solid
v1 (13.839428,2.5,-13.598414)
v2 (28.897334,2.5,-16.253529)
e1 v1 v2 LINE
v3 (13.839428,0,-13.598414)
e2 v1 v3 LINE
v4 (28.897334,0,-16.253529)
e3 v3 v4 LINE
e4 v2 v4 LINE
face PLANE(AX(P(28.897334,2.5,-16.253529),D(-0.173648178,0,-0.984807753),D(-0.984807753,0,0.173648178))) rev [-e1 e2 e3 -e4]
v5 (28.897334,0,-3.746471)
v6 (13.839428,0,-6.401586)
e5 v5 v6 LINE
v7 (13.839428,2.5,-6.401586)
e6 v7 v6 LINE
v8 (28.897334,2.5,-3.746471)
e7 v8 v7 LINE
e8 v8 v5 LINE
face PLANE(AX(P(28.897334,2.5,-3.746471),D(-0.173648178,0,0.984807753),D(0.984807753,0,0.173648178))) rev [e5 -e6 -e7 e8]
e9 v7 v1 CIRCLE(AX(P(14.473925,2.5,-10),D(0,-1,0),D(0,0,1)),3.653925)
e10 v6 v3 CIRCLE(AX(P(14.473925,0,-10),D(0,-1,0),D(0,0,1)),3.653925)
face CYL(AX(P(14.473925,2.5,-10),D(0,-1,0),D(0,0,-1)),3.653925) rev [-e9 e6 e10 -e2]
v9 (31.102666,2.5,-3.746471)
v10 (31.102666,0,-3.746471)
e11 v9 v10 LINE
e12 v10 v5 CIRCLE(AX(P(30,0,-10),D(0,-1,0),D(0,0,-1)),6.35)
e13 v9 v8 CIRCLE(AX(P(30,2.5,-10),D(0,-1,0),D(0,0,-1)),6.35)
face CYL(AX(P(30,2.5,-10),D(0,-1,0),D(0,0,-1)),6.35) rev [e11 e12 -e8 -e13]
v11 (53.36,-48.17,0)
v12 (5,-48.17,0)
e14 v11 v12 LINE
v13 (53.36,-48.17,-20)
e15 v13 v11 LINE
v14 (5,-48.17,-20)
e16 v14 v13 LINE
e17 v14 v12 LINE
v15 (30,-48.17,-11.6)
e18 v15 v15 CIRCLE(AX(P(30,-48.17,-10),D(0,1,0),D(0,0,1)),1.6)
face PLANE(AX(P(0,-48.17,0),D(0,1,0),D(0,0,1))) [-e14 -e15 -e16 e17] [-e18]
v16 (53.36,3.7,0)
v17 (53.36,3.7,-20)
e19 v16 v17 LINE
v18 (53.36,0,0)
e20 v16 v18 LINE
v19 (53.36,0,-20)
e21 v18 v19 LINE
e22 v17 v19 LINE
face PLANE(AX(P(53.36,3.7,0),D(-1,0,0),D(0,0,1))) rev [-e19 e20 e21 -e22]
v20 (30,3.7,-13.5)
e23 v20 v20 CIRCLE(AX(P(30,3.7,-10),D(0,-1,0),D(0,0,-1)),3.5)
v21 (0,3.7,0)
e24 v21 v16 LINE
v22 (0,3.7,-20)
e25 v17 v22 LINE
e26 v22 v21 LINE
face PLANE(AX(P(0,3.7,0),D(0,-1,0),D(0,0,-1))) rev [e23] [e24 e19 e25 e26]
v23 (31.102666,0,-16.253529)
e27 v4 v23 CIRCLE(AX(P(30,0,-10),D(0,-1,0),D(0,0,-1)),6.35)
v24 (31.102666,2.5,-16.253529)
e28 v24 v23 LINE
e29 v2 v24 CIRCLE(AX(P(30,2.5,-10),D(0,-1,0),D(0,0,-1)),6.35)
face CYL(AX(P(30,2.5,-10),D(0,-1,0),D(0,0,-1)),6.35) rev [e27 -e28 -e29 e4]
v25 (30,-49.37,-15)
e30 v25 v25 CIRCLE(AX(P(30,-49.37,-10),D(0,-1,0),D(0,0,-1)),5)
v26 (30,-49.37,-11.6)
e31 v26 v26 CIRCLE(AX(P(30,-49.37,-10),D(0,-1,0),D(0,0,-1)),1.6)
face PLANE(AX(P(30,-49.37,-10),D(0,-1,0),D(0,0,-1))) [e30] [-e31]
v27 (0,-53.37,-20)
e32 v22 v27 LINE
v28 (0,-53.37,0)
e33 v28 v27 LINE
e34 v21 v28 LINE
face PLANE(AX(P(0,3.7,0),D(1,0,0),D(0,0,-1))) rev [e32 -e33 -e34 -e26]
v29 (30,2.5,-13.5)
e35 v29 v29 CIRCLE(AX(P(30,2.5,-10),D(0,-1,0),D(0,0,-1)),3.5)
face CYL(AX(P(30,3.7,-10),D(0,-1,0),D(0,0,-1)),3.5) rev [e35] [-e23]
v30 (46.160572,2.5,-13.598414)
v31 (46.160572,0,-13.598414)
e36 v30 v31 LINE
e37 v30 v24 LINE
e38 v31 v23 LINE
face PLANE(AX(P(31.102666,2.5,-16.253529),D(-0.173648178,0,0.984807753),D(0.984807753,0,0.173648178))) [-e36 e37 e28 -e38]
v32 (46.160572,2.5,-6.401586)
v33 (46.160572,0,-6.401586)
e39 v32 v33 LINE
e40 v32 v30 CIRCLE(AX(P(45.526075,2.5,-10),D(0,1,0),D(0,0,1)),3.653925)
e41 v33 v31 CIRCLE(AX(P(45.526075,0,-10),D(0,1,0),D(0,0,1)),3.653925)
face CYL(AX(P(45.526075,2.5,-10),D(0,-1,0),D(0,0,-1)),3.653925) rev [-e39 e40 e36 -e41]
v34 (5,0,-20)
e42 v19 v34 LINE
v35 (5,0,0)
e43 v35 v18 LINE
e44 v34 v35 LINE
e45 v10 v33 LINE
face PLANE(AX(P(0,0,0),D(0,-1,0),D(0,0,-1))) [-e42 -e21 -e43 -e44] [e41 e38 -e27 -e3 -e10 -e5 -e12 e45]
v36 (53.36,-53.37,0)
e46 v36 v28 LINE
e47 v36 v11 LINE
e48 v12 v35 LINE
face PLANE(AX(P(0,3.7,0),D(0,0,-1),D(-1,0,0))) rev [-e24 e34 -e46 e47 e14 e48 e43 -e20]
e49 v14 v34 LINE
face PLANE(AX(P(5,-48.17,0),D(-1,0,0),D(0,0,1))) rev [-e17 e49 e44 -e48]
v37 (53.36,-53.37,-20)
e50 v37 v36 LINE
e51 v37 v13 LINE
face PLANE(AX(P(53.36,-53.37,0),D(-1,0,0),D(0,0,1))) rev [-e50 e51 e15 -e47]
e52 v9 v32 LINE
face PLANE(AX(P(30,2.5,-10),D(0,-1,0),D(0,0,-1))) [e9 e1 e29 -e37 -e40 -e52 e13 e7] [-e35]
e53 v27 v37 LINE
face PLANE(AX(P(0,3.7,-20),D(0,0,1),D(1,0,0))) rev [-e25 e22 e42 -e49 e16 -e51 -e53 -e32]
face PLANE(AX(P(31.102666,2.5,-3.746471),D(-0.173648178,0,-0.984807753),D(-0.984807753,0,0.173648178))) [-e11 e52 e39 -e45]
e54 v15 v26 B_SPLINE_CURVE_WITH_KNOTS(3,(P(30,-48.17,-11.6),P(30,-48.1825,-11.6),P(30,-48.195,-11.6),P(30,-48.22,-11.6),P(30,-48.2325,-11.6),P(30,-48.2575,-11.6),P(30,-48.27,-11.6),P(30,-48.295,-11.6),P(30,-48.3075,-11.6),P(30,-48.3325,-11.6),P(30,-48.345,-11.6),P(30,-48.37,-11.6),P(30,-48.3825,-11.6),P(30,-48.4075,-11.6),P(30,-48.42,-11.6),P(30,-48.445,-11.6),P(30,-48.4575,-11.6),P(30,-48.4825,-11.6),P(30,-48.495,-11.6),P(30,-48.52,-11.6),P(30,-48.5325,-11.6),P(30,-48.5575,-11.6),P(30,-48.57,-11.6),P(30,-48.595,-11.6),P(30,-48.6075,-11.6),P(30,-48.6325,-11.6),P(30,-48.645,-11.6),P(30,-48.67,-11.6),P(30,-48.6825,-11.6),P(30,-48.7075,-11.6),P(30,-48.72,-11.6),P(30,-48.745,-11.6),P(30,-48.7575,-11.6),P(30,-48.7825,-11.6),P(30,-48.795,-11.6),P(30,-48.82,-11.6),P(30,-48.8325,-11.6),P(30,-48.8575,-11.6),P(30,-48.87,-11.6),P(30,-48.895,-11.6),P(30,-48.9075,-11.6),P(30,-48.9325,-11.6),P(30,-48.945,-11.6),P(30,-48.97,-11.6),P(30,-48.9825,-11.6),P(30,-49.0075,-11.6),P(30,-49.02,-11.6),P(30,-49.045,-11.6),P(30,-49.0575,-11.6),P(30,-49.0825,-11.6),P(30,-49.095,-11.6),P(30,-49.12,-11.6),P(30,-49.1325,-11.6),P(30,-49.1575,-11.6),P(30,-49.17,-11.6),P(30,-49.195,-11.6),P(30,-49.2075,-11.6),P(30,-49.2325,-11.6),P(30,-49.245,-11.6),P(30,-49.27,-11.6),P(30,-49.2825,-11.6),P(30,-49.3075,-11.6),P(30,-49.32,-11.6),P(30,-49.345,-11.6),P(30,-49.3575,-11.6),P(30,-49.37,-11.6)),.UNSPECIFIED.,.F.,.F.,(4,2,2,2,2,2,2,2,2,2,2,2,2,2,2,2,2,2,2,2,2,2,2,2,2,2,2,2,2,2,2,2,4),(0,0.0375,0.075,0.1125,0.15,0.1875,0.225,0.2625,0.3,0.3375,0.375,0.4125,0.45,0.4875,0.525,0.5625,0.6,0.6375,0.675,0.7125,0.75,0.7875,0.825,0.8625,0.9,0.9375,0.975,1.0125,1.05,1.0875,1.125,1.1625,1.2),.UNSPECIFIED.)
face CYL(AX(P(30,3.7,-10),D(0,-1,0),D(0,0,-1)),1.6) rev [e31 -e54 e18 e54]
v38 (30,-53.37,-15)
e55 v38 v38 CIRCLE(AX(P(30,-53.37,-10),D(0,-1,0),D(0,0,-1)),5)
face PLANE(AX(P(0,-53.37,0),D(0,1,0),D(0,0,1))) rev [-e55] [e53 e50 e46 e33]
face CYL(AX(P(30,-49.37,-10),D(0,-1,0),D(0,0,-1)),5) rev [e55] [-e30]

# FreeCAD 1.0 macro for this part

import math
import FreeCAD as App
import Part
import Sketcher

V = App.Vector
Q = App.Units.Quantity


def add_polygon(sketch, points):
    """Adds a closed chain of lines whose ends are joined by coincident constraints."""
    first, n = sketch.GeometryCount, len(points)
    for a, b in zip(points, points[1:] + points[:1]):
        sketch.addGeometry(Part.LineSegment(App.Vector(*a, 0), App.Vector(*b, 0)), False)
    for i in range(n):
        sketch.addConstraint(Sketcher.Constraint("Coincident", first + i, 2, first + (i + 1) % n, 1))

doc = App.newDocument("Part")
body = doc.addObject("PartDesign::Body", "Body")

# Sketch on XZ plane
sketch1 = body.newObject("Sketcher::SketchObject", "Sketch")
sketch1.AttachmentSupport = (doc.getObject("XZ_Plane"), [""])
sketch1.MapMode = "FlatFace"
add_polygon(sketch1, [(0, -20), (0, 0), (53, 0), (53, -20)])  # lines 0-3
sketch1.addConstraint([
    Sketcher.Constraint("Vertical", 0),
    Sketcher.Constraint("Horizontal", 1),
    Sketcher.Constraint("Vertical", 2),
    Sketcher.Constraint("Horizontal", 3),
    Sketcher.Constraint("Coincident", 0, 2, -1, 1),
    Sketcher.Constraint("DistanceY", 0, 1, 0, 2, 20.0),
    Sketcher.Constraint("DistanceX", 1, 1, 1, 2, 53.36),
])
pad1 = body.newObject("PartDesign::Pad", "Pad")
pad1.Profile = sketch1
pad1.Length = 3.7
pad1.Reversed = True

# Sketch on XZ plane
sketch2 = body.newObject("Sketcher::SketchObject", "Sketch001")
sketch2.AttachmentSupport = (doc.getObject("XZ_Plane"), [""])
sketch2.MapMode = "FlatFace"
add_polygon(sketch2, [(0, 0), (0, -20), (5, -20), (5, 0)])  # lines 0-3
sketch2.addConstraint([
    Sketcher.Constraint("Vertical", 0),
    Sketcher.Constraint("Horizontal", 1),
    Sketcher.Constraint("Vertical", 2),
    Sketcher.Constraint("Horizontal", 3),
    Sketcher.Constraint("Coincident", 3, 2, -1, 1),
    Sketcher.Constraint("DistanceX", 1, 1, 1, 2, 5.0),
    Sketcher.Constraint("DistanceY", 0, 2, 0, 1, 20.0),
])
pad2 = body.newObject("PartDesign::Pad", "Pad001")
pad2.Profile = sketch2
pad2.Length = 48.17

# Sketch on XZ plane
sketch3 = body.newObject("Sketcher::SketchObject", "Sketch002")
sketch3.AttachmentSupport = (doc.getObject("XZ_Plane"), [""])
sketch3.MapMode = "FlatFace"
sketch3.AttachmentOffset = App.Placement(V(0, 0, 48.17), App.Rotation())
add_polygon(sketch3, [(0, 0), (0, -20), (53, -20), (53, 0)])  # lines 0-3
sketch3.addConstraint([
    Sketcher.Constraint("Vertical", 0),
    Sketcher.Constraint("Horizontal", 1),
    Sketcher.Constraint("Vertical", 2),
    Sketcher.Constraint("Horizontal", 3),
    Sketcher.Constraint("Coincident", 3, 2, -1, 1),
    Sketcher.Constraint("DistanceY", 0, 2, 0, 1, 20.0),
    Sketcher.Constraint("DistanceX", 1, 1, 1, 2, 53.36),
])
pad3 = body.newObject("PartDesign::Pad", "Pad002")
pad3.Profile = sketch3
pad3.Length = 5.2

# Sketch on XZ plane
sketch4 = body.newObject("Sketcher::SketchObject", "Sketch003")
sketch4.AttachmentSupport = (doc.getObject("XZ_Plane"), [""])
sketch4.MapMode = "FlatFace"
sketch4.addGeometry([
    Part.LineSegment(V(28.9, -3.7, 0), V(13.8, -6.4, 0)),  # 0
    Part.ArcOfCircle(Part.Circle(V(14.5, -10, 0), V(0, 0, 1), 3.7), math.radians(100), math.radians(260)),  # 1
    Part.LineSegment(V(13.8, -13.6, 0), V(28.9, -16.3, 0)),  # 2
    Part.ArcOfCircle(Part.Circle(V(30, -10, 0), V(0, 0, 1), 6.4), math.radians(-100), math.radians(-90)),  # 3
    Part.LineSegment(V(30, -16.4, 0), V(30, -3.6, 0)),  # 4
    Part.ArcOfCircle(Part.Circle(V(30, -10, 0), V(0, 0, 1), 6.4), math.radians(90), math.radians(100)),  # 5
], False)
sketch4.addConstraint([
    Sketcher.Constraint("Tangent", 0, 2, 1, 1),
    Sketcher.Constraint("Tangent", 1, 2, 2, 1),
    Sketcher.Constraint("Tangent", 2, 2, 3, 1),
    Sketcher.Constraint("Coincident", 3, 2, 4, 1),
    Sketcher.Constraint("Coincident", 4, 2, 5, 1),
    Sketcher.Constraint("Tangent", 5, 2, 0, 1),
    Sketcher.Constraint("Vertical", 4),
    Sketcher.Constraint("Coincident", 5, 3, 3, 3),
    Sketcher.Constraint("Equal", 3, 5),
    Sketcher.Constraint("Horizontal", 1, 3, 3, 3),
    Sketcher.Constraint("Vertical", 5, 3, 3, 2),
    Sketcher.Constraint("Angle", 0, Q("-170 deg")),
    Sketcher.Constraint("Radius", 3, 6.35),
    Sketcher.Constraint("DistanceY", 1, 3, -1, 1, 10.0),
    Sketcher.Constraint("DistanceX", -1, 1, 3, 3, 30.0),
    Sketcher.Constraint("Radius", 1, 3.653925),
])
pocket1 = body.newObject("PartDesign::Pocket", "Pocket")
pocket1.Profile = sketch4
pocket1.Length = 2.5
doc.recompute()

datumplane = body.newObject("PartDesign::Plane", "DatumPlane")
datumplane.AttachmentSupport = (doc.getObject("YZ_Plane"), [""])
datumplane.MapMode = "FlatFace"
datumplane.AttachmentOffset = App.Placement(V(0, 0, 30), App.Rotation())
mirrored = body.newObject("PartDesign::Mirrored", "Mirrored")
mirrored.Originals = [pocket1]
mirrored.MirrorPlane = (datumplane, [""])
body.Tip = mirrored

# Sketch on XZ plane
sketch5 = body.newObject("Sketcher::SketchObject", "Sketch004")
sketch5.AttachmentSupport = (doc.getObject("XZ_Plane"), [""])
sketch5.MapMode = "FlatFace"
sketch5.AttachmentOffset = App.Placement(V(0, 0, -2.5), App.Rotation())
sketch5.addGeometry(Part.Circle(V(30, -10, 0), V(0, 0, 1), 3.5), False)
sketch5.addConstraint([
    Sketcher.Constraint("Diameter", 0, 7.0),
    Sketcher.Constraint("DistanceX", -1, 1, 0, 3, 30.0),
    Sketcher.Constraint("DistanceY", 0, 3, -1, 1, 10.0),
])
pocket2 = body.newObject("PartDesign::Pocket", "Pocket001")
pocket2.Profile = sketch5
pocket2.Type = "ThroughAll"

# Sketch on XZ plane
sketch6 = body.newObject("Sketcher::SketchObject", "Sketch005")
sketch6.AttachmentSupport = (doc.getObject("XZ_Plane"), [""])
sketch6.MapMode = "FlatFace"
sketch6.AttachmentOffset = App.Placement(V(0, 0, 53.37), App.Rotation())
sketch6.addGeometry(Part.Circle(V(30, -10, 0), V(0, 0, 1), 5), False)
sketch6.addConstraint([
    Sketcher.Constraint("Diameter", 0, 10.0),
    Sketcher.Constraint("DistanceX", -1, 1, 0, 3, 30.0),
    Sketcher.Constraint("DistanceY", 0, 3, -1, 1, 10.0),
])
pocket3 = body.newObject("PartDesign::Pocket", "Pocket002")
pocket3.Profile = sketch6
pocket3.Length = 4

# Sketch on XZ plane
sketch7 = body.newObject("Sketcher::SketchObject", "Sketch006")
sketch7.AttachmentSupport = (doc.getObject("XZ_Plane"), [""])
sketch7.MapMode = "FlatFace"
sketch7.AttachmentOffset = App.Placement(V(0, 0, 49.37), App.Rotation())
sketch7.addGeometry(Part.Circle(V(30, -10, 0), V(0, 0, 1), 1.6), False)
sketch7.addConstraint([
    Sketcher.Constraint("Diameter", 0, 3.2),
    Sketcher.Constraint("DistanceX", -1, 1, 0, 3, 30.0),
    Sketcher.Constraint("DistanceY", 0, 3, -1, 1, 10.0),
])
pocket4 = body.newObject("PartDesign::Pocket", "Pocket003")
pocket4.Profile = sketch7
pocket4.Type = "ThroughAll"

doc.recompute()
